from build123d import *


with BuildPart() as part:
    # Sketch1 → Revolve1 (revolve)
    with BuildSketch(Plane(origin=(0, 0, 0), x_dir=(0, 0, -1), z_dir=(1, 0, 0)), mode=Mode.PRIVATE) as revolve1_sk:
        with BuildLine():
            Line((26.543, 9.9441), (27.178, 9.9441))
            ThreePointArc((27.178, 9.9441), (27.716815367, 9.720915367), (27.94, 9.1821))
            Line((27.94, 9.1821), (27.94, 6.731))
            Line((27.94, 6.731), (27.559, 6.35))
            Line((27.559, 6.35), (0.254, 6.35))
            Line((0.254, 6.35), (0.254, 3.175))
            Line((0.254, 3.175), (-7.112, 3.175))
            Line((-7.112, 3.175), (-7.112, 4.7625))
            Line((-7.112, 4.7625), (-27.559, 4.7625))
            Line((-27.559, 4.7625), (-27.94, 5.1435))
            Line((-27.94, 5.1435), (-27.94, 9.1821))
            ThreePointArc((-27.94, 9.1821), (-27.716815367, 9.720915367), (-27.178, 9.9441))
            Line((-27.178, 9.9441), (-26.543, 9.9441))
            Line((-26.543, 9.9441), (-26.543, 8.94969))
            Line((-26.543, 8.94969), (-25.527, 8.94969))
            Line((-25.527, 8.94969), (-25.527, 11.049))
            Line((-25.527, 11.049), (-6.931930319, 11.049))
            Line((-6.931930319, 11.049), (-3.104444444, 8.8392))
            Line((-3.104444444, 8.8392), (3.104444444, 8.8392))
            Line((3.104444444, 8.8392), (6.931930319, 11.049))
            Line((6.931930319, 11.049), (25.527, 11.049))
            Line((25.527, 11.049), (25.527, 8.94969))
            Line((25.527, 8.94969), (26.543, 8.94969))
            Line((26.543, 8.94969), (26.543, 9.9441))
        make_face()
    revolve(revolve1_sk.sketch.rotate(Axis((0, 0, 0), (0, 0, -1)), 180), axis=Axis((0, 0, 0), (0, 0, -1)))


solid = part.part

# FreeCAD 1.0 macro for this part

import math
import FreeCAD as App
import Part
import Sketcher
Q = App.Units.Quantity

doc = App.newDocument("Part")
body = doc.addObject("PartDesign::Body", "Body")

sketch1 = body.newObject("Sketcher::SketchObject", "Sketch")
sketch1.AttachmentSupport = (doc.getObject("YZ_Plane"), [""])
sketch1.MapMode = "FlatFace"
sketch1.addGeometry(Part.LineSegment(App.Vector(9.9441, -27.178, 0), App.Vector(9.9441, -26.543, 0)), False)
sketch1.addGeometry(Part.LineSegment(App.Vector(9.9441, -26.543, 0), App.Vector(8.94969, -26.543, 0)), False)
sketch1.addGeometry(Part.LineSegment(App.Vector(8.94969, -26.543, 0), App.Vector(8.94969, -25.527, 0)), False)
sketch1.addGeometry(Part.LineSegment(App.Vector(8.94969, -25.527, 0), App.Vector(11.049, -25.527, 0)), False)
sketch1.addGeometry(Part.LineSegment(App.Vector(11.049, -25.527, 0), App.Vector(11.049, -6.93193, 0)), False)
sketch1.addGeometry(Part.LineSegment(App.Vector(11.049, -6.93193, 0), App.Vector(8.8392, -3.104444, 0)), False)
sketch1.addGeometry(Part.LineSegment(App.Vector(8.8392, -3.104444, 0), App.Vector(8.8392, 3.104444, 0)), False)
sketch1.addGeometry(Part.LineSegment(App.Vector(8.8392, 3.104444, 0), App.Vector(11.049, 6.93193, 0)), False)
sketch1.addGeometry(Part.LineSegment(App.Vector(11.049, 6.93193, 0), App.Vector(11.049, 25.527, 0)), False)
sketch1.addGeometry(Part.LineSegment(App.Vector(11.049, 25.527, 0), App.Vector(8.94969, 25.527, 0)), False)
sketch1.addGeometry(Part.LineSegment(App.Vector(8.94969, 25.527, 0), App.Vector(8.94969, 26.543, 0)), False)
sketch1.addGeometry(Part.LineSegment(App.Vector(8.94969, 26.543, 0), App.Vector(9.9441, 26.543, 0)), False)
sketch1.addGeometry(Part.LineSegment(App.Vector(9.9441, 26.543, 0), App.Vector(9.9441, 27.178, 0)), False)
sketch1.addGeometry(Part.ArcOfCircle(Part.Circle(App.Vector(9.1821, 27.178, 0), App.Vector(0, 0, 1), 0.762), math.radians(0), math.radians(90)), False)
sketch1.addGeometry(Part.LineSegment(App.Vector(9.1821, 27.94, 0), App.Vector(5.1435, 27.94, 0)), False)
sketch1.addGeometry(Part.LineSegment(App.Vector(5.1435, 27.94, 0), App.Vector(4.7625, 27.559, 0)), False)
sketch1.addGeometry(Part.LineSegment(App.Vector(4.7625, 27.559, 0), App.Vector(4.7625, 7.112, 0)), False)
sketch1.addGeometry(Part.LineSegment(App.Vector(4.7625, 7.112, 0), App.Vector(3.175, 7.112, 0)), False)
sketch1.addGeometry(Part.LineSegment(App.Vector(3.175, 7.112, 0), App.Vector(3.175, -0.254, 0)), False)
sketch1.addGeometry(Part.LineSegment(App.Vector(3.175, -0.254, 0), App.Vector(6.35, -0.254, 0)), False)
sketch1.addGeometry(Part.LineSegment(App.Vector(6.35, -0.254, 0), App.Vector(6.35, -27.559, 0)), False)
sketch1.addGeometry(Part.LineSegment(App.Vector(6.35, -27.559, 0), App.Vector(6.731, -27.94, 0)), False)
sketch1.addGeometry(Part.LineSegment(App.Vector(6.731, -27.94, 0), App.Vector(9.1821, -27.94, 0)), False)
sketch1.addGeometry(Part.ArcOfCircle(Part.Circle(App.Vector(9.1821, -27.178, 0), App.Vector(0, 0, 1), 0.762), math.radians(-90), math.radians(0)), False)
sketch1.addConstraint(Sketcher.Constraint("Coincident", 0, 2, 1, 1))
sketch1.addConstraint(Sketcher.Constraint("Coincident", 1, 2, 2, 1))
sketch1.addConstraint(Sketcher.Constraint("Coincident", 2, 2, 3, 1))
sketch1.addConstraint(Sketcher.Constraint("Coincident", 3, 2, 4, 1))
sketch1.addConstraint(Sketcher.Constraint("Coincident", 4, 2, 5, 1))
sketch1.addConstraint(Sketcher.Constraint("Coincident", 5, 2, 6, 1))
sketch1.addConstraint(Sketcher.Constraint("Coincident", 6, 2, 7, 1))
sketch1.addConstraint(Sketcher.Constraint("Coincident", 7, 2, 8, 1))
sketch1.addConstraint(Sketcher.Constraint("Coincident", 8, 2, 9, 1))
sketch1.addConstraint(Sketcher.Constraint("Coincident", 9, 2, 10, 1))
sketch1.addConstraint(Sketcher.Constraint("Coincident", 10, 2, 11, 1))
sketch1.addConstraint(Sketcher.Constraint("Coincident", 11, 2, 12, 1))
sketch1.addConstraint(Sketcher.Constraint("Tangent", 12, 2, 13, 1))
sketch1.addConstraint(Sketcher.Constraint("Tangent", 13, 2, 14, 1))
sketch1.addConstraint(Sketcher.Constraint("Coincident", 14, 2, 15, 1))
sketch1.addConstraint(Sketcher.Constraint("Coincident", 15, 2, 16, 1))
sketch1.addConstraint(Sketcher.Constraint("Coincident", 16, 2, 17, 1))
sketch1.addConstraint(Sketcher.Constraint("Coincident", 17, 2, 18, 1))
sketch1.addConstraint(Sketcher.Constraint("Coincident", 18, 2, 19, 1))
sketch1.addConstraint(Sketcher.Constraint("Coincident", 19, 2, 20, 1))
sketch1.addConstraint(Sketcher.Constraint("Coincident", 20, 2, 21, 1))
sketch1.addConstraint(Sketcher.Constraint("Coincident", 21, 2, 22, 1))
sketch1.addConstraint(Sketcher.Constraint("Tangent", 22, 2, 23, 1))
sketch1.addConstraint(Sketcher.Constraint("Tangent", 23, 2, 0, 1))
sketch1.addConstraint(Sketcher.Constraint("Vertical", 0))
sketch1.addConstraint(Sketcher.Constraint("Horizontal", 1))
sketch1.addConstraint(Sketcher.Constraint("Vertical", 2))
sketch1.addConstraint(Sketcher.Constraint("Horizontal", 3))
sketch1.addConstraint(Sketcher.Constraint("Vertical", 4))
sketch1.addConstraint(Sketcher.Constraint("Vertical", 6))
sketch1.addConstraint(Sketcher.Constraint("Vertical", 8))
sketch1.addConstraint(Sketcher.Constraint("Horizontal", 9))
sketch1.addConstraint(Sketcher.Constraint("Vertical", 10))
sketch1.addConstraint(Sketcher.Constraint("Horizontal", 11))
sketch1.addConstraint(Sketcher.Constraint("Vertical", 12))
sketch1.addConstraint(Sketcher.Constraint("Horizontal", 14))
sketch1.addConstraint(Sketcher.Constraint("Vertical", 16))
sketch1.addConstraint(Sketcher.Constraint("Horizontal", 17))
sketch1.addConstraint(Sketcher.Constraint("Vertical", 18))
sketch1.addConstraint(Sketcher.Constraint("Horizontal", 19))
sketch1.addConstraint(Sketcher.Constraint("Vertical", 20))
sketch1.addConstraint(Sketcher.Constraint("Horizontal", 22))
sketch1.addConstraint(Sketcher.Constraint("Equal", 13, 23))
sketch1.addConstraint(Sketcher.Constraint("Symmetric", 13, 3, 23, 3, -1))
sketch1.addConstraint(Sketcher.Constraint("Symmetric", 4, 2, 7, 2, -1))
sketch1.addConstraint(Sketcher.Constraint("Symmetric", 2, 2, 9, 2, -1))
sketch1.addConstraint(Sketcher.Constraint("Perpendicular", 15, 21))
sketch1.addConstraint(Sketcher.Constraint("Equal", 2, 10))
sketch1.addConstraint(Sketcher.Constraint("Equal", 5, 7))
sketch1.addConstraint(Sketcher.Constraint("Equal", 15, 21))
sketch1.addConstraint(Sketcher.Constraint("Radius", 13, Q("0.03 in")))
sketch1.addConstraint(Sketcher.Constraint("Angle", 5, Q("120 deg")))
sketch1.addConstraint(Sketcher.Constraint("Angle", 15, Q("-135 deg")))
sketch1.addConstraint(Sketcher.Constraint("DistanceY", 2, 1, 2, 2, Q("0.04 in")))
sketch1.addConstraint(Sketcher.Constraint("DistanceY", 18, 2, 18, 1, Q("0.29 in")))
sketch1.addConstraint(Sketcher.Constraint("DistanceY", -1, 1, 13, 2, Q("1.1 in")))
sketch1.addConstraint(Sketcher.Constraint("DistanceX", 14, 2, 14, 1, Q("0.159 in")))
sketch1.addConstraint(Sketcher.Constraint("DistanceX", 17, 2, 17, 1, Q("0.0625 in")))
sketch1.addConstraint(Sketcher.Constraint("DistanceX", 19, 1, 19, 2, Q("0.125 in")))
sketch1.addConstraint(Sketcher.Constraint("DistanceY", 0, 1, 0, 2, Q("0.025 in")))
sketch1.addConstraint(Sketcher.Constraint("DistanceY", 16, 2, 16, 1, Q("0.805 in")))
sketch1.addConstraint(Sketcher.Constraint("DistanceY", 20, 2, 20, 1, Q("1.075 in")))
sketch1.addConstraint(Sketcher.Constraint("DistanceX", -1, 1, 19, 2, Q("0.25 in")))
sketch1.addConstraint(Sketcher.Constraint("DistanceX", 17, 2, 7, 2, Q("0.31 in")))
sketch1.addConstraint(Sketcher.Constraint("Distance", 5, Q("0.174 in")))
sketch1.addConstraint(Sketcher.Constraint("DistanceX", 1, 2, 1, 1, 0.99441))
sketch1.addConstraint(Sketcher.Constraint("DistanceY", 4, 1, 4, 2, 18.59507))
revolution = body.newObject("PartDesign::Revolution", "Revolution")
revolution.Profile = sketch1
revolution.ReferenceAxis = (sketch1, ["V_Axis"])
revolution.Angle = 360

doc.recompute()
